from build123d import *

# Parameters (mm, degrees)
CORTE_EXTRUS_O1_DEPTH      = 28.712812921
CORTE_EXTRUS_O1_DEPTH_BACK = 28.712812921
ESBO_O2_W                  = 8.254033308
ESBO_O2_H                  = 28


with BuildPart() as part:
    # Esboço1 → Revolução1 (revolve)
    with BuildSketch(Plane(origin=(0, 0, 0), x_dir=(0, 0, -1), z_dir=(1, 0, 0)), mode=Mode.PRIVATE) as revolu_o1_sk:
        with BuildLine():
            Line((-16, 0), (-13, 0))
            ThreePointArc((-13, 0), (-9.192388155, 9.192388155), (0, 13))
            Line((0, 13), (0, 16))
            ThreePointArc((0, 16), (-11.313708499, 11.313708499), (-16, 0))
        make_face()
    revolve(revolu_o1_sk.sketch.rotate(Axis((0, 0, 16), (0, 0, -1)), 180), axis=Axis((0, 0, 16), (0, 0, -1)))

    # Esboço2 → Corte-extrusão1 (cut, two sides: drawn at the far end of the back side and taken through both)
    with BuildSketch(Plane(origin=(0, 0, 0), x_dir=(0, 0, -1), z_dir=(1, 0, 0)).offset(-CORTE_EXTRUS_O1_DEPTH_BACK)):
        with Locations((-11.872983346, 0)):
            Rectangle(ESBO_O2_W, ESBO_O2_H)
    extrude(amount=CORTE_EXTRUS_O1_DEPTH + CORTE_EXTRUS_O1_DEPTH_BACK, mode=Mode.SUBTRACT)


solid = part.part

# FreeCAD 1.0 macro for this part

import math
import FreeCAD as App
import Part
import Sketcher
from FreeCAD import Vector

doc = App.newDocument("Part")
body = doc.addObject("PartDesign::Body", "Body")

# Sketch on YZ plane
sketch1 = body.newObject("Sketcher::SketchObject", "Sketch")
sketch1.AttachmentSupport = (doc.getObject("YZ_Plane"), [""])
sketch1.MapMode = "FlatFace"
sketch1.addGeometry(Part.LineSegment(Vector(0, 16, 0), Vector(0, 13, 0)), False)
sketch1.addGeometry(Part.ArcOfCircle(Part.Circle(Vector(0, 0, 0), Vector(0, 0, 1), 13), math.radians(0), math.radians(90)), False)
sketch1.addGeometry(Part.LineSegment(Vector(13, 0, 0), Vector(16, 0, 0)), False)
sketch1.addGeometry(Part.ArcOfCircle(Part.Circle(Vector(0, 0, 0), Vector(0, 0, 1), 16), math.radians(0), math.radians(90)), False)
sketch1.addConstraint(Sketcher.Constraint("Coincident", 0, 2, 1, 2))
sketch1.addConstraint(Sketcher.Constraint("Coincident", 1, 1, 2, 1))
sketch1.addConstraint(Sketcher.Constraint("Coincident", 2, 2, 3, 1))
sketch1.addConstraint(Sketcher.Constraint("Coincident", 3, 2, 0, 1))
sketch1.addConstraint(Sketcher.Constraint("Vertical", 0))
sketch1.addConstraint(Sketcher.Constraint("Horizontal", 2))
sketch1.addConstraint(Sketcher.Constraint("Coincident", 1, 3, -1, 1))
sketch1.addConstraint(Sketcher.Constraint("Coincident", 3, 3, -1, 1))
sketch1.addConstraint(Sketcher.Constraint("PointOnObject", 0, 2, -2))
sketch1.addConstraint(Sketcher.Constraint("PointOnObject", 1, 1, -1))
sketch1.addConstraint(Sketcher.Constraint("Radius", 1, 13.0))
sketch1.addConstraint(Sketcher.Constraint("Radius", 3, 16.0))
revolution = body.newObject("PartDesign::Revolution", "Revolution")
revolution.Profile = sketch1
revolution.ReferenceAxis = (sketch1, ["V_Axis"])
revolution.Angle = 360

# Sketch on YZ plane
sketch2 = body.newObject("Sketcher::SketchObject", "Sketch001")
sketch2.AttachmentSupport = (doc.getObject("YZ_Plane"), [""])
sketch2.MapMode = "FlatFace"
sketch2.addGeometry(Part.LineSegment(Vector(14, 16, 0), Vector(-14, 16, 0)), False)
sketch2.addGeometry(Part.LineSegment(Vector(-14, 16, 0), Vector(-14, 7.745967, 0)), False)
sketch2.addGeometry(Part.LineSegment(Vector(-14, 7.745967, 0), Vector(14, 7.745967, 0)), False)
sketch2.addGeometry(Part.LineSegment(Vector(14, 7.745967, 0), Vector(14, 16, 0)), False)
sketch2.addConstraint(Sketcher.Constraint("Coincident", 0, 2, 1, 1))
sketch2.addConstraint(Sketcher.Constraint("Coincident", 1, 2, 2, 1))
sketch2.addConstraint(Sketcher.Constraint("Coincident", 2, 2, 3, 1))
sketch2.addConstraint(Sketcher.Constraint("Coincident", 3, 2, 0, 1))
sketch2.addConstraint(Sketcher.Constraint("Horizontal", 0))
sketch2.addConstraint(Sketcher.Constraint("Vertical", 1))
sketch2.addConstraint(Sketcher.Constraint("Horizontal", 2))
sketch2.addConstraint(Sketcher.Constraint("Vertical", 3))
sketch2.addConstraint(Sketcher.Constraint("DistanceX", 0, 2, 0, 1, 28.0))
sketch2.addConstraint(Sketcher.Constraint("DistanceX", 0, 2, -1, 1, 14.0))
sketch2.addConstraint(Sketcher.Constraint("DistanceY", -1, 1, 0, 2, 16.0))
sketch2.addConstraint(Sketcher.Constraint("DistanceY", 1, 2, 1, 1, 8.254033))
pocket1 = body.newObject("PartDesign::Pocket", "Pocket")
pocket1.Profile = sketch2
pocket1.Type = "ThroughAll"
pocket1.Midplane = True

doc.recompute()
